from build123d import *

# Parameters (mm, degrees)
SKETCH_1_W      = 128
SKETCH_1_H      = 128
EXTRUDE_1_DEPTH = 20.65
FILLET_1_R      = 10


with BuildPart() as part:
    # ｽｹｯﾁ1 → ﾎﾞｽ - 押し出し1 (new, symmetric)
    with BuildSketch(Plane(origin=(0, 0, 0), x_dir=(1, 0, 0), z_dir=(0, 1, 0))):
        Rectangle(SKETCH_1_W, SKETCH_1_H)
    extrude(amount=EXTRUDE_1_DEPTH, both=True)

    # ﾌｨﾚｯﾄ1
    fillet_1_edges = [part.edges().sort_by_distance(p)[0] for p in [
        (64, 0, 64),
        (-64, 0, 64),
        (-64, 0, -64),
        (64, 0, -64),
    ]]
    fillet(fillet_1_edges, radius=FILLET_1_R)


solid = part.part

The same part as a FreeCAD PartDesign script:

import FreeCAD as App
import Part
import Sketcher
from FreeCAD import Vector


def edges_at(feature, points):
    """Names of the edges that pass closest to the given points."""
    edges = feature.Shape.Edges
    near = lambda p: min(range(len(edges)), key=lambda i: edges[i].distToShape(Part.Vertex(*p))[0])
    return sorted({f"Edge{near(p) + 1}" for p in points})


def add_polygon(sketch, points):
    """Adds a closed chain of lines whose ends are joined by coincident constraints."""
    first, n = sketch.GeometryCount, len(points)
    for a, b in zip(points, points[1:] + points[:1]):
        sketch.addGeometry(Part.LineSegment(App.Vector(*a, 0), App.Vector(*b, 0)), False)
    for i in range(n):
        sketch.addConstraint(Sketcher.Constraint("Coincident", first + i, 2, first + (i + 1) % n, 1))

doc = App.newDocument("Part")
body = doc.addObject("PartDesign::Body", "Body")

# Sketch on XZ plane
sketch1 = body.newObject("Sketcher::SketchObject", "Sketch")
sketch1.AttachmentSupport = (doc.getObject("XZ_Plane"), [""])
sketch1.MapMode = "FlatFace"
add_polygon(sketch1, [(-64, -64), (-64, 64), (64, 64), (64, -64)])  # lines 0-3
sketch1.addConstraint(Sketcher.Constraint("Vertical", 0))
sketch1.addConstraint(Sketcher.Constraint("Horizontal", 1))
sketch1.addConstraint(Sketcher.Constraint("Vertical", 2))
sketch1.addConstraint(Sketcher.Constraint("Horizontal", 3))
sketch1.addConstraint(Sketcher.Constraint("Symmetric", 0, 2, 2, 2, -1, 1))
sketch1.addConstraint(Sketcher.Constraint("Equal", 3, 0))
sketch1.addConstraint(Sketcher.Constraint("DistanceX", 1, 1, 1, 2, 128.0))
pad1 = body.newObject("PartDesign::Pad", "Pad")
pad1.Profile = sketch1
pad1.Length = 41.3
pad1.Midplane = True
doc.recompute()

fillet = body.newObject("PartDesign::Fillet", "Fillet")
fillet.Base = (pad1, edges_at(pad1, [
    (64, 0, 64),
    (-64, 0, 64),
    (-64, 0, -64),
    (64, 0, -64),
]))
fillet.Radius = 10

doc.recompute()
